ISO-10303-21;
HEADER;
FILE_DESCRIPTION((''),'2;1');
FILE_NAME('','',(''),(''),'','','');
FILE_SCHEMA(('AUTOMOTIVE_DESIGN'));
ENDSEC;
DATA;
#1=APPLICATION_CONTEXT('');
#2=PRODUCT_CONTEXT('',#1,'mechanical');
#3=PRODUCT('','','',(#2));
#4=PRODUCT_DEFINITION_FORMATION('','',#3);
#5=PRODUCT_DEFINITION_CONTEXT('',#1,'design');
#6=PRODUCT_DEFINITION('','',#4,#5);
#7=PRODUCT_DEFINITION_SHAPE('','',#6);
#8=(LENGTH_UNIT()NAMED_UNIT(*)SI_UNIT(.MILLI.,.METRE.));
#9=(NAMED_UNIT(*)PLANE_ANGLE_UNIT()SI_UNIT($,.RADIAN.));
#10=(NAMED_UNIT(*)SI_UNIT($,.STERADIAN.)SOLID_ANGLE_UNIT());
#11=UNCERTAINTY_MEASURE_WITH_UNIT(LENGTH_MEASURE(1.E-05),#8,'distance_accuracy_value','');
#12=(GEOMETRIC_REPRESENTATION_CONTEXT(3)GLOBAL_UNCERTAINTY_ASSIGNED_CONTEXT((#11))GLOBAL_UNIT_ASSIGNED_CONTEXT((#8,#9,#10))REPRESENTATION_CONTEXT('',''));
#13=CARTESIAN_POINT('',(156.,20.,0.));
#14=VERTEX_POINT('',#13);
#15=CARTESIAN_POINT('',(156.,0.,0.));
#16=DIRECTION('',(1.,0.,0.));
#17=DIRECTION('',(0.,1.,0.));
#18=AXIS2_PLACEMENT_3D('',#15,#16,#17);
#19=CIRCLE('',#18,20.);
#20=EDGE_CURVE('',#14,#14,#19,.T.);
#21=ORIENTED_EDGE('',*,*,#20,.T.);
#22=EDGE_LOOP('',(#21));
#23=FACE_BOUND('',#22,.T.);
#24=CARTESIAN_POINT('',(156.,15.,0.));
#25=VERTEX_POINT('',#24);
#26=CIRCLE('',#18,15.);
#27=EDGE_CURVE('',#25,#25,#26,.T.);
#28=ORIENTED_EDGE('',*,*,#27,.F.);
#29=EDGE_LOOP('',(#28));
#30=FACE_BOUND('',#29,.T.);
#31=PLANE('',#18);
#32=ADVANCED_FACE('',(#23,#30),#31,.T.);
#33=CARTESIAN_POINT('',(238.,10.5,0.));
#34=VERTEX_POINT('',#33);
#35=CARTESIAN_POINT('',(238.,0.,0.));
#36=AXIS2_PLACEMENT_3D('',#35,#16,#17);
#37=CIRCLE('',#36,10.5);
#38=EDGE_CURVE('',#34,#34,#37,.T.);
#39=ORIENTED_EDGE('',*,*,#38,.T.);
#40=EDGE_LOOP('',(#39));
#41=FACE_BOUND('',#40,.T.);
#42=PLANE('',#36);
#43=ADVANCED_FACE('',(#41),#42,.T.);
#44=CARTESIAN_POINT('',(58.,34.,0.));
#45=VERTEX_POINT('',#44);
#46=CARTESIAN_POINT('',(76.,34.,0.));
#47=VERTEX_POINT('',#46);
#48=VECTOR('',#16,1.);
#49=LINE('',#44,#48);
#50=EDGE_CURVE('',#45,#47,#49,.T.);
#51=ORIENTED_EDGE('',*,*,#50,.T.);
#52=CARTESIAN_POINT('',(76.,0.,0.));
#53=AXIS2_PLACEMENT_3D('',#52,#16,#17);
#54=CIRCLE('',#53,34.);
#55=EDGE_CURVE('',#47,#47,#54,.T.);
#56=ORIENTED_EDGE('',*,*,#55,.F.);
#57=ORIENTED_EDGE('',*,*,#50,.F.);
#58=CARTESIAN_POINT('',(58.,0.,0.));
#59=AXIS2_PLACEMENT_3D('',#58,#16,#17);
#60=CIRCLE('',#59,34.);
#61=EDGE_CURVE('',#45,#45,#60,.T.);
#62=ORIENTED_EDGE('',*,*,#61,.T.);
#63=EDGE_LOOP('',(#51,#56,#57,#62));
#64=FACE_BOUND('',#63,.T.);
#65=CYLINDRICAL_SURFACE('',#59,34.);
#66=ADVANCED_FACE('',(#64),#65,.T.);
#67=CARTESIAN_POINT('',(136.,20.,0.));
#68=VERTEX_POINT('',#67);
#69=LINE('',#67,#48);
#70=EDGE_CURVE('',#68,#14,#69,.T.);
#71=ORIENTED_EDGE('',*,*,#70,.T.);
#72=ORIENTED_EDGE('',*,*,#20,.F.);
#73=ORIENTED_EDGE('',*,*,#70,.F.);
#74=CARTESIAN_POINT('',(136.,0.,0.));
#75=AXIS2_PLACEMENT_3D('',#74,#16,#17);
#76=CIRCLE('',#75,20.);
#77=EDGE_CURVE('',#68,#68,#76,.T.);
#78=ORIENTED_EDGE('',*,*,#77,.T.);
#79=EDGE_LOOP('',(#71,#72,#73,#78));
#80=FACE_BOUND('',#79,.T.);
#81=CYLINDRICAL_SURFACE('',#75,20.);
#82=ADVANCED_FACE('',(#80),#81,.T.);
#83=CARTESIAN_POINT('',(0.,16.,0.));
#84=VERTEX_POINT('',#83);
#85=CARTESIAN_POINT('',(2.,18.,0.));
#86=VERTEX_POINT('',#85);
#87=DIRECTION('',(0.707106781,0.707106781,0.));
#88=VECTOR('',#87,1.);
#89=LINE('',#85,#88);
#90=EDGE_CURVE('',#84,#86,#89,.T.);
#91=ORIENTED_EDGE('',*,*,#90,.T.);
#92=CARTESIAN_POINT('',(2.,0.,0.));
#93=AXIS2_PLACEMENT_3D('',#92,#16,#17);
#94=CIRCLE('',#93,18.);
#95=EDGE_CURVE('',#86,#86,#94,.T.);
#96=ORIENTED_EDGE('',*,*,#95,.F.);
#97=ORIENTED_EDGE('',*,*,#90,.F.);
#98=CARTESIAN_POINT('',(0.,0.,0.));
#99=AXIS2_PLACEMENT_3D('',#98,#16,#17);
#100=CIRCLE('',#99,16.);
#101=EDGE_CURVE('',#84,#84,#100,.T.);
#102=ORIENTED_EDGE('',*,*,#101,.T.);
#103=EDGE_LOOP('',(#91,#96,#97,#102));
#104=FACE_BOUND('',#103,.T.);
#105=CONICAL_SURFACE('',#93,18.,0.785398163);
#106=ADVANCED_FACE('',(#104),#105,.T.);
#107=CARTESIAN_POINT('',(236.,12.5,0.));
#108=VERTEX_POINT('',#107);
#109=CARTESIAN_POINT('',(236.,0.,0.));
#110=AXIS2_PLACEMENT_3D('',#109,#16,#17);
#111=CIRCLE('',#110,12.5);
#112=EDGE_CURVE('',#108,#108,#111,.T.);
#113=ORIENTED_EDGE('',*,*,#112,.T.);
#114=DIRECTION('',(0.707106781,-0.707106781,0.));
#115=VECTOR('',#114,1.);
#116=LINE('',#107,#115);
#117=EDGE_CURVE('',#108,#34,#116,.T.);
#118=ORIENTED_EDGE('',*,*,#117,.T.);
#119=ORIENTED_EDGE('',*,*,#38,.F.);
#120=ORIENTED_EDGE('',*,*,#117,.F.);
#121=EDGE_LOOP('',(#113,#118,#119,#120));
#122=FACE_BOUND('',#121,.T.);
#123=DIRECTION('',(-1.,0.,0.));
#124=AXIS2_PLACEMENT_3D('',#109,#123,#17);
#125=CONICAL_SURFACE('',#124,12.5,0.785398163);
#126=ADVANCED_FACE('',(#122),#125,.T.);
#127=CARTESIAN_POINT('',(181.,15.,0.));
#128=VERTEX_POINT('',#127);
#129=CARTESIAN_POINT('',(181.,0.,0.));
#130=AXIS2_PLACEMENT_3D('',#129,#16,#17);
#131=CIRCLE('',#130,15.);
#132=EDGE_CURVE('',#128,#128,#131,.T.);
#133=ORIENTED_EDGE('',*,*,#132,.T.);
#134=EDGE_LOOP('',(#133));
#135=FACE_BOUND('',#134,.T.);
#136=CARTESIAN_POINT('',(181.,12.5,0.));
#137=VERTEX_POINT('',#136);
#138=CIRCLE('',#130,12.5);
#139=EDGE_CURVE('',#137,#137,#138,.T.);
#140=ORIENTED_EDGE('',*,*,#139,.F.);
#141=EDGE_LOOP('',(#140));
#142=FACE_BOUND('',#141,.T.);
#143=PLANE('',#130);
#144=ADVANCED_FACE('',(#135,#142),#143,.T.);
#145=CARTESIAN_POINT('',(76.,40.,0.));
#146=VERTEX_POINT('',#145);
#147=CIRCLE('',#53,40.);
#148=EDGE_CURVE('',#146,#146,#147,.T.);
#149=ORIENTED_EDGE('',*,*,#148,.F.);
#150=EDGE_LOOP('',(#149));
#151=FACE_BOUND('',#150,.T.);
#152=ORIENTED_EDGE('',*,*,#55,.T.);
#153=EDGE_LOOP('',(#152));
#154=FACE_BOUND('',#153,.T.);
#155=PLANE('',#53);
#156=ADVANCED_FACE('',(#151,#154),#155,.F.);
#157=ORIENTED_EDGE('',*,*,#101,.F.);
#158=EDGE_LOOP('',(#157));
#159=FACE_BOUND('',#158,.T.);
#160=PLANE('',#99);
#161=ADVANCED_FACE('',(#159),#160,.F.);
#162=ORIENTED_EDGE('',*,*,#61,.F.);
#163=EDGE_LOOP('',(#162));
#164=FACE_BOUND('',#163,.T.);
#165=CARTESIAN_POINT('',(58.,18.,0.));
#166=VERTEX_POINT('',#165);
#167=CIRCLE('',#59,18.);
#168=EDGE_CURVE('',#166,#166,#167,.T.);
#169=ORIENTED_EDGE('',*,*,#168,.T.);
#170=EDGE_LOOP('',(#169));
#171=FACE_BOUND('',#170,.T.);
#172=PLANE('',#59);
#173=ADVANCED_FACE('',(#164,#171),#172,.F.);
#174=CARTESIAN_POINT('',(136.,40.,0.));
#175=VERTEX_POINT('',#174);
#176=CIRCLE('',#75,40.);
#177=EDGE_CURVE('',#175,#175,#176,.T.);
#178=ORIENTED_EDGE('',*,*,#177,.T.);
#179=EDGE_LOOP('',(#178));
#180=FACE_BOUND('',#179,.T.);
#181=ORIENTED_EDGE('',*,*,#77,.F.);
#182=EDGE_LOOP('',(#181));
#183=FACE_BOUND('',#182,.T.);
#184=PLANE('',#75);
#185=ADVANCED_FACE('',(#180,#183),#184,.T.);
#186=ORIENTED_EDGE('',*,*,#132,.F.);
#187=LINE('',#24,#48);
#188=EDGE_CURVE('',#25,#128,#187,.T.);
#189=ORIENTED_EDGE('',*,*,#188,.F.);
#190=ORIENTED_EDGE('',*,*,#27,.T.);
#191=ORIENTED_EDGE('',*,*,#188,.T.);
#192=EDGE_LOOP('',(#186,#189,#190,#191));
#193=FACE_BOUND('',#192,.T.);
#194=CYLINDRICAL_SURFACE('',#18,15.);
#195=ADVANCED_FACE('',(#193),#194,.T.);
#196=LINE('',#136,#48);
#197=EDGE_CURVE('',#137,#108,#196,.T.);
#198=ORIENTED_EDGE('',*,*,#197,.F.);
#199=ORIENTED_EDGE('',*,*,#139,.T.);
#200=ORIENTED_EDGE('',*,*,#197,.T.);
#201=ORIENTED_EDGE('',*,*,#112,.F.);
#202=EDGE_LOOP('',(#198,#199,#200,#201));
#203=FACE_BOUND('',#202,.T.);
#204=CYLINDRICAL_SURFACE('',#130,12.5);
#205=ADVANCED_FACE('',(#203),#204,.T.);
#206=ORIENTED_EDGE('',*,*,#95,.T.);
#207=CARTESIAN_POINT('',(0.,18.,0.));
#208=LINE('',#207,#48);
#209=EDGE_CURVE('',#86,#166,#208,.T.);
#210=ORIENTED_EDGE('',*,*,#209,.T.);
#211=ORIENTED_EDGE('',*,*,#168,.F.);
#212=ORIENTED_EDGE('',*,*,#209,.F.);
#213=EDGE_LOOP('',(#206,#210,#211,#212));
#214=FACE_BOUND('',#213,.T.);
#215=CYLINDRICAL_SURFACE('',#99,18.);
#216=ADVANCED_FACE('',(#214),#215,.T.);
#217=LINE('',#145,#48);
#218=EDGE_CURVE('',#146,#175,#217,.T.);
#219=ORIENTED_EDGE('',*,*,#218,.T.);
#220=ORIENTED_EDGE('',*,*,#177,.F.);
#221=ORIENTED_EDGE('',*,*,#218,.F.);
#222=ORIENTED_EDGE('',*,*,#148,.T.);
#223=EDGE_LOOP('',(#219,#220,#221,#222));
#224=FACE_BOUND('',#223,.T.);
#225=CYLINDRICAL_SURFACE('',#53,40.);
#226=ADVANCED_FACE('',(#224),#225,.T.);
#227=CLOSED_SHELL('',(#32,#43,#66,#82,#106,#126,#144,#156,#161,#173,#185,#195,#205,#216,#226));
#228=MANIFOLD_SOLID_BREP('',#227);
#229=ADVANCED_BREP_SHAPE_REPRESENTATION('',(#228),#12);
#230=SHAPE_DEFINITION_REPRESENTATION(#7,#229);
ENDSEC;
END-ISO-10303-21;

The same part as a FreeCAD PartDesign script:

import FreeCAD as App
import Part
import Sketcher
from FreeCAD import Vector
Q = App.Units.Quantity


def edges_at(feature, points):
    """Names of the edges that pass closest to the given points."""
    edges = feature.Shape.Edges
    near = lambda p: min(range(len(edges)), key=lambda i: edges[i].distToShape(Part.Vertex(*p))[0])
    return sorted({f"Edge{near(p) + 1}" for p in points})

doc = App.newDocument("Part")
body = doc.addObject("PartDesign::Body", "Body")

# Sketch on XY plane
sketch1 = body.newObject("Sketcher::SketchObject", "Sketch")
sketch1.AttachmentSupport = (doc.getObject("XY_Plane"), [""])
sketch1.MapMode = "FlatFace"
sketch1.addGeometry(Part.LineSegment(Vector(0, 18, 0), Vector(0, 0, 0)), False)
sketch1.addGeometry(Part.LineSegment(Vector(0, 0, 0), Vector(238, 0, 0)), False)
sketch1.addGeometry(Part.LineSegment(Vector(238, 0, 0), Vector(238, 12.5, 0)), False)
sketch1.addGeometry(Part.LineSegment(Vector(238, 12.5, 0), Vector(181, 12.5, 0)), False)
sketch1.addGeometry(Part.LineSegment(Vector(181, 12.5, 0), Vector(181, 15, 0)), False)
sketch1.addGeometry(Part.LineSegment(Vector(181, 15, 0), Vector(156, 15, 0)), False)
sketch1.addGeometry(Part.LineSegment(Vector(156, 15, 0), Vector(156, 20, 0)), False)
sketch1.addGeometry(Part.LineSegment(Vector(156, 20, 0), Vector(136, 20, 0)), False)
sketch1.addGeometry(Part.LineSegment(Vector(136, 20, 0), Vector(136, 40, 0)), False)
sketch1.addGeometry(Part.LineSegment(Vector(136, 40, 0), Vector(76, 40, 0)), False)
sketch1.addGeometry(Part.LineSegment(Vector(76, 40, 0), Vector(76, 34, 0)), False)
sketch1.addGeometry(Part.LineSegment(Vector(76, 34, 0), Vector(58, 34, 0)), False)
sketch1.addGeometry(Part.LineSegment(Vector(58, 34, 0), Vector(58, 18, 0)), False)
sketch1.addGeometry(Part.LineSegment(Vector(58, 18, 0), Vector(0, 18, 0)), False)
sketch1.addConstraint(Sketcher.Constraint("Coincident", 0, 2, 1, 1))
sketch1.addConstraint(Sketcher.Constraint("Coincident", 1, 2, 2, 1))
sketch1.addConstraint(Sketcher.Constraint("Coincident", 2, 2, 3, 1))
sketch1.addConstraint(Sketcher.Constraint("Coincident", 3, 2, 4, 1))
sketch1.addConstraint(Sketcher.Constraint("Coincident", 4, 2, 5, 1))
sketch1.addConstraint(Sketcher.Constraint("Coincident", 5, 2, 6, 1))
sketch1.addConstraint(Sketcher.Constraint("Coincident", 6, 2, 7, 1))
sketch1.addConstraint(Sketcher.Constraint("Coincident", 7, 2, 8, 1))
sketch1.addConstraint(Sketcher.Constraint("Coincident", 8, 2, 9, 1))
sketch1.addConstraint(Sketcher.Constraint("Coincident", 9, 2, 10, 1))
sketch1.addConstraint(Sketcher.Constraint("Coincident", 10, 2, 11, 1))
sketch1.addConstraint(Sketcher.Constraint("Coincident", 11, 2, 12, 1))
sketch1.addConstraint(Sketcher.Constraint("Coincident", 12, 2, 13, 1))
sketch1.addConstraint(Sketcher.Constraint("Coincident", 13, 2, 0, 1))
sketch1.addConstraint(Sketcher.Constraint("Vertical", 0))
sketch1.addConstraint(Sketcher.Constraint("Horizontal", 1))
sketch1.addConstraint(Sketcher.Constraint("Vertical", 2))
sketch1.addConstraint(Sketcher.Constraint("Horizontal", 3))
sketch1.addConstraint(Sketcher.Constraint("Vertical", 4))
sketch1.addConstraint(Sketcher.Constraint("Horizontal", 5))
sketch1.addConstraint(Sketcher.Constraint("Vertical", 6))
sketch1.addConstraint(Sketcher.Constraint("Horizontal", 7))
sketch1.addConstraint(Sketcher.Constraint("Vertical", 8))
sketch1.addConstraint(Sketcher.Constraint("Horizontal", 9))
sketch1.addConstraint(Sketcher.Constraint("Vertical", 10))
sketch1.addConstraint(Sketcher.Constraint("Horizontal", 11))
sketch1.addConstraint(Sketcher.Constraint("Vertical", 12))
sketch1.addConstraint(Sketcher.Constraint("Horizontal", 13))
sketch1.addConstraint(Sketcher.Constraint("Coincident", 0, 2, -1, 1))
sketch1.addConstraint(Sketcher.Constraint("Equal", 11, 0))
sketch1.addConstraint(Sketcher.Constraint("Equal", 7, 8))
sketch1.addConstraint(Sketcher.Constraint("DistanceX", 5, 2, 5, 1, Q("25 mm")))
sketch1.addConstraint(Sketcher.Constraint("DistanceY", -1, 1, 8, 2, Q("40 mm")))
sketch1.addConstraint(Sketcher.Constraint("DistanceY", 5, 2, 8, 2, Q("25 mm")))
sketch1.addConstraint(Sketcher.Constraint("DistanceX", 9, 2, 6, 2, Q("80 mm")))
sketch1.addConstraint(Sketcher.Constraint("DistanceX", 1, 1, 1, 2, Q("238 mm")))
sketch1.addConstraint(Sketcher.Constraint("DistanceX", 3, 2, 3, 1, Q("57 mm")))
sketch1.addConstraint(Sketcher.Constraint("DistanceX", 7, 2, 7, 1, Q("20 mm")))
sketch1.addConstraint(Sketcher.Constraint("DistanceX", 11, 2, 11, 1, Q("18 mm")))
sketch1.addConstraint(Sketcher.Constraint("DistanceY", 10, 2, 10, 1, Q("6 mm")))
sketch1.addConstraint(Sketcher.Constraint("DistanceY", 2, 1, 2, 2, Q("12.5 mm")))
revolution = body.newObject("PartDesign::Revolution", "Revolution")
revolution.Profile = sketch1
revolution.ReferenceAxis = (sketch1, ["H_Axis"])
revolution.Angle = 360
doc.recompute()

chamfer = body.newObject("PartDesign::Chamfer", "Chamfer")
chamfer.Base = (revolution, edges_at(revolution, [(0, -18, 0)]))
chamfer.Size = 2
doc.recompute()

chamfer2 = body.newObject("PartDesign::Chamfer", "Chamfer001")
chamfer2.Base = (chamfer, edges_at(chamfer, [(238, -12.5, 0)]))
chamfer2.Size = 2

doc.recompute()
